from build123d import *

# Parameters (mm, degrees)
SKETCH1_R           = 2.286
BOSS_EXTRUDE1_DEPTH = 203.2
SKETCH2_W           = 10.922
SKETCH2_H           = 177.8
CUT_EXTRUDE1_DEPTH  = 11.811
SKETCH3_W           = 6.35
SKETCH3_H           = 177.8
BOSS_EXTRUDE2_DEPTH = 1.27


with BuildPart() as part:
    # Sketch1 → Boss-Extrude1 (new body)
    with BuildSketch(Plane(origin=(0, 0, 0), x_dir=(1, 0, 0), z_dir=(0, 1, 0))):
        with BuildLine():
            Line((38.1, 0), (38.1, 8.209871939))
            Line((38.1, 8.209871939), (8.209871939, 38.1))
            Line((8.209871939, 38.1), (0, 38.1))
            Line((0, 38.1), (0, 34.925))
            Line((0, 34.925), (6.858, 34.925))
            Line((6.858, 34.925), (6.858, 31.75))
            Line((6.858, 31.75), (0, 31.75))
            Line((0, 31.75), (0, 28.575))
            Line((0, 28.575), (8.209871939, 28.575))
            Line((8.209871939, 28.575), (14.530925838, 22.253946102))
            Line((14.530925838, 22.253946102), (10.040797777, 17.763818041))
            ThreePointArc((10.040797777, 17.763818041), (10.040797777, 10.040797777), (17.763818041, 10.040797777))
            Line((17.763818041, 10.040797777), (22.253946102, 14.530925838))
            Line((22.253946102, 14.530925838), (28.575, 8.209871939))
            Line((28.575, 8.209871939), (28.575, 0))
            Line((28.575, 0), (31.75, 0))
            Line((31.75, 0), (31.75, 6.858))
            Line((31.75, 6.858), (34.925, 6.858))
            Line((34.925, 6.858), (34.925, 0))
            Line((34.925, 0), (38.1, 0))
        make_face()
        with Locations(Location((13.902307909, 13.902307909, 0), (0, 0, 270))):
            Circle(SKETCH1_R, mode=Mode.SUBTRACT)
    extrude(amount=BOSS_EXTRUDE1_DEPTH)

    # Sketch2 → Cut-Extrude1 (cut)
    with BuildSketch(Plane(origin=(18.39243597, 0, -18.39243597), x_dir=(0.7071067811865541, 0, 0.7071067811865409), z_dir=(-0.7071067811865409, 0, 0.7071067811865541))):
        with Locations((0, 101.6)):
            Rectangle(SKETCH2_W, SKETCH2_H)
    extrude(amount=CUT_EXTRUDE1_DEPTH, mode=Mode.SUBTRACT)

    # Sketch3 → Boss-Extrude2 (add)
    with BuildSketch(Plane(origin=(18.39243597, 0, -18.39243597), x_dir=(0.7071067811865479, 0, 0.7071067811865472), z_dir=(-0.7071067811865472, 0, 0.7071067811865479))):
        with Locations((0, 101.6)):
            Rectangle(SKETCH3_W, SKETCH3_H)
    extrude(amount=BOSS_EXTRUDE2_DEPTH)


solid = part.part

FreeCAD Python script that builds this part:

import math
import FreeCAD as App
import Part
import Sketcher
Q = App.Units.Quantity


def add_polygon(sketch, points):
    """Adds a closed chain of lines whose ends are joined by coincident constraints."""
    first, n = sketch.GeometryCount, len(points)
    for a, b in zip(points, points[1:] + points[:1]):
        sketch.addGeometry(Part.LineSegment(App.Vector(*a, 0), App.Vector(*b, 0)), False)
    for i in range(n):
        sketch.addConstraint(Sketcher.Constraint("Coincident", first + i, 2, first + (i + 1) % n, 1))

doc = App.newDocument("Part")
body = doc.addObject("PartDesign::Body", "Body")

sketch1 = doc.addObject("Sketcher::SketchObject", "Sketch")
body.addObject(sketch1)
sketch1.AttachmentSupport = (doc.XZ_Plane, [""])
sketch1.MapMode = "FlatFace"
sketch1.addGeometry([
    Part.LineSegment(App.Vector(38.1, 0, 0), App.Vector(38.1, -8.209872, 0)),
    Part.LineSegment(App.Vector(38.1, -8.209872, 0), App.Vector(8.209872, -38.1, 0)),
    Part.LineSegment(App.Vector(8.209872, -38.1, 0), App.Vector(0, -38.1, 0)),
    Part.LineSegment(App.Vector(0, -38.1, 0), App.Vector(0, -34.925, 0)),
    Part.LineSegment(App.Vector(0, -34.925, 0), App.Vector(6.858, -34.925, 0)),
    Part.LineSegment(App.Vector(6.858, -34.925, 0), App.Vector(6.858, -31.75, 0)),
    Part.LineSegment(App.Vector(6.858, -31.75, 0), App.Vector(0, -31.75, 0)),
    Part.LineSegment(App.Vector(0, -31.75, 0), App.Vector(0, -28.575, 0)),
    Part.LineSegment(App.Vector(0, -28.575, 0), App.Vector(8.209872, -28.575, 0)),
    Part.LineSegment(App.Vector(8.209872, -28.575, 0), App.Vector(14.530926, -22.253946, 0)),
    Part.LineSegment(App.Vector(14.530926, -22.253946, 0), App.Vector(10.040798, -17.763818, 0)),
    Part.ArcOfCircle(Part.Circle(App.Vector(13.902308, -13.902308, 0), App.Vector(0, 0, 1), 5.461), math.radians(45), math.radians(225)),
    Part.LineSegment(App.Vector(17.763818, -10.040798, 0), App.Vector(22.253946, -14.530926, 0)),
    Part.LineSegment(App.Vector(22.253946, -14.530926, 0), App.Vector(28.575, -8.209872, 0)),
    Part.LineSegment(App.Vector(28.575, -8.209872, 0), App.Vector(28.575, 0, 0)),
    Part.LineSegment(App.Vector(28.575, 0, 0), App.Vector(31.75, 0, 0)),
    Part.LineSegment(App.Vector(31.75, 0, 0), App.Vector(31.75, -6.858, 0)),
    Part.LineSegment(App.Vector(31.75, -6.858, 0), App.Vector(34.925, -6.858, 0)),
    Part.LineSegment(App.Vector(34.925, -6.858, 0), App.Vector(34.925, 0, 0)),
    Part.LineSegment(App.Vector(34.925, 0, 0), App.Vector(38.1, 0, 0)),
    Part.Circle(App.Vector(13.902308, -13.902308, 0), App.Vector(0, 0, 1), 2.286),
], False)
sketch1.addConstraint([
    Sketcher.Constraint("Coincident", 0, 2, 1, 1),
    Sketcher.Constraint("Coincident", 1, 2, 2, 1),
    Sketcher.Constraint("Coincident", 2, 2, 3, 1),
    Sketcher.Constraint("Coincident", 3, 2, 4, 1),
    Sketcher.Constraint("Coincident", 4, 2, 5, 1),
    Sketcher.Constraint("Coincident", 5, 2, 6, 1),
    Sketcher.Constraint("Coincident", 6, 2, 7, 1),
    Sketcher.Constraint("Coincident", 7, 2, 8, 1),
    Sketcher.Constraint("Coincident", 8, 2, 9, 1),
    Sketcher.Constraint("Coincident", 9, 2, 10, 1),
    Sketcher.Constraint("Tangent", 10, 2, 11, 2),
    Sketcher.Constraint("Tangent", 11, 1, 12, 1),
    Sketcher.Constraint("Coincident", 12, 2, 13, 1),
    Sketcher.Constraint("Coincident", 13, 2, 14, 1),
    Sketcher.Constraint("Coincident", 14, 2, 15, 1),
    Sketcher.Constraint("Coincident", 15, 2, 16, 1),
    Sketcher.Constraint("Coincident", 16, 2, 17, 1),
    Sketcher.Constraint("Coincident", 17, 2, 18, 1),
    Sketcher.Constraint("Coincident", 18, 2, 19, 1),
    Sketcher.Constraint("Coincident", 19, 2, 0, 1),
    Sketcher.Constraint("Vertical", 0),
    Sketcher.Constraint("Horizontal", 2),
    Sketcher.Constraint("Vertical", 3),
    Sketcher.Constraint("Horizontal", 4),
    Sketcher.Constraint("Vertical", 5),
    Sketcher.Constraint("Horizontal", 6),
    Sketcher.Constraint("Vertical", 7),
    Sketcher.Constraint("Horizontal", 8),
    Sketcher.Constraint("Vertical", 14),
    Sketcher.Constraint("Horizontal", 15),
    Sketcher.Constraint("Vertical", 16),
    Sketcher.Constraint("Horizontal", 17),
    Sketcher.Constraint("Vertical", 18),
    Sketcher.Constraint("Horizontal", 19),
    Sketcher.Constraint("Coincident", 20, 3, 11, 3),
    Sketcher.Constraint("PointOnObject", 2, 2, -2),
    Sketcher.Constraint("PointOnObject", 6, 2, -2),
    Sketcher.Constraint("PointOnObject", 14, 2, -1),
    Sketcher.Constraint("PointOnObject", 18, 2, -1),
    Sketcher.Constraint("Parallel", 1, 9),
    Sketcher.Constraint("Perpendicular", 9, 10),
    Sketcher.Constraint("Parallel", 10, 12),
    Sketcher.Constraint("Perpendicular", 12, 13),
    Sketcher.Constraint("Horizontal", 0, 2, 13, 2),
    Sketcher.Constraint("Vertical", 1, 2, 8, 2),
    Sketcher.Constraint("Equal", 15, 17),
    Sketcher.Constraint("Equal", 17, 19),
    Sketcher.Constraint("Equal", 8, 0),
    Sketcher.Constraint("Equal", 19, 3),
    Sketcher.Constraint("Equal", 3, 5),
    Sketcher.Constraint("Equal", 5, 7),
    Sketcher.Constraint("Equal", 6, 16),
    Sketcher.Constraint("Equal", 10, 12),
    Sketcher.Constraint("Equal", 9, 13),
    Sketcher.Constraint("Diameter", 20, Q("0.18 in")),
    Sketcher.Constraint("Radius", 11, Q("0.215 in")),
    Sketcher.Constraint("DistanceX", 4, 1, 4, 2, Q("0.27 in")),
    Sketcher.Constraint("DistanceX", -1, 1, 0, 2, Q("1.5 in")),
    Sketcher.Constraint("Distance", 10, Q("0.25 in")),
    Sketcher.Constraint("DistanceX", 15, 1, 15, 2, Q("0.125 in")),
    Sketcher.Constraint("DistanceX", 2, 2, 2, 1, Q("8.209872 mm")),
])
pad1 = doc.addObject("PartDesign::Pad", "Pad")
body.addObject(pad1)
pad1.Profile = sketch1
pad1.Length = Q("8 in")
pad1.Reversed = True

sketch2 = doc.addObject("Sketcher::SketchObject", "Sketch001")
body.addObject(sketch2)
sketch2.Placement = App.Placement(App.Vector(18.392436, 0, -18.392436), App.Rotation(App.Vector(0.707106781, 0, 0.707106781), App.Vector(0, 0.999999999, 0), App.Vector(-0.707106781, 0, 0.707106781), "ZXY"))
add_polygon(sketch2, [(-5.461, 190.5), (-5.461, 12.7), (5.461, 12.7), (5.461, 190.5)])
sketch2.addConstraint([
    Sketcher.Constraint("Vertical", 0),
    Sketcher.Constraint("Horizontal", 1),
    Sketcher.Constraint("Vertical", 2),
    Sketcher.Constraint("Horizontal", 3),
    Sketcher.Constraint("DistanceY", 0, 2, 0, 1, Q("7 in")),
    Sketcher.Constraint("DistanceX", 1, 1, 1, 2, Q("0.43 in")),
    Sketcher.Constraint("DistanceY", -1, 1, 0, 2, Q("0.5 in")),
    Sketcher.Constraint("DistanceX", 0, 2, -1, 1, Q("0.215 in")),
])
pocket1 = doc.addObject("PartDesign::Pocket", "Pocket")
body.addObject(pocket1)
pocket1.Profile = sketch2
pocket1.Length = Q("0.465 in")
pocket1.Reversed = True

sketch3 = doc.addObject("Sketcher::SketchObject", "Sketch002")
body.addObject(sketch3)
sketch3.Placement = App.Placement(App.Vector(18.392436, 0, -18.392436), App.Rotation(App.Vector(0.707106781, 0, 0.707106781), App.Vector(0, 0.999999999, 0), App.Vector(-0.707106781, 0, 0.707106781), "ZXY"))
add_polygon(sketch3, [(-3.175, 190.5), (-3.175, 12.7), (3.175, 12.7), (3.175, 190.5)])
sketch3.addConstraint([
    Sketcher.Constraint("Vertical", 0),
    Sketcher.Constraint("Horizontal", 1),
    Sketcher.Constraint("Vertical", 2),
    Sketcher.Constraint("Horizontal", 3),
    Sketcher.Constraint("DistanceY", 0, 2, 0, 1, Q("7 in")),
    Sketcher.Constraint("DistanceX", 1, 1, 1, 2, Q("0.25 in")),
    Sketcher.Constraint("DistanceY", -1, 1, 0, 2, Q("0.5 in")),
    Sketcher.Constraint("DistanceX", 0, 2, -1, 1, Q("0.125 in")),
])
pad2 = doc.addObject("PartDesign::Pad", "Pad001")
body.addObject(pad2)
pad2.Profile = sketch3
pad2.Length = Q("0.05 in")

doc.recompute()
